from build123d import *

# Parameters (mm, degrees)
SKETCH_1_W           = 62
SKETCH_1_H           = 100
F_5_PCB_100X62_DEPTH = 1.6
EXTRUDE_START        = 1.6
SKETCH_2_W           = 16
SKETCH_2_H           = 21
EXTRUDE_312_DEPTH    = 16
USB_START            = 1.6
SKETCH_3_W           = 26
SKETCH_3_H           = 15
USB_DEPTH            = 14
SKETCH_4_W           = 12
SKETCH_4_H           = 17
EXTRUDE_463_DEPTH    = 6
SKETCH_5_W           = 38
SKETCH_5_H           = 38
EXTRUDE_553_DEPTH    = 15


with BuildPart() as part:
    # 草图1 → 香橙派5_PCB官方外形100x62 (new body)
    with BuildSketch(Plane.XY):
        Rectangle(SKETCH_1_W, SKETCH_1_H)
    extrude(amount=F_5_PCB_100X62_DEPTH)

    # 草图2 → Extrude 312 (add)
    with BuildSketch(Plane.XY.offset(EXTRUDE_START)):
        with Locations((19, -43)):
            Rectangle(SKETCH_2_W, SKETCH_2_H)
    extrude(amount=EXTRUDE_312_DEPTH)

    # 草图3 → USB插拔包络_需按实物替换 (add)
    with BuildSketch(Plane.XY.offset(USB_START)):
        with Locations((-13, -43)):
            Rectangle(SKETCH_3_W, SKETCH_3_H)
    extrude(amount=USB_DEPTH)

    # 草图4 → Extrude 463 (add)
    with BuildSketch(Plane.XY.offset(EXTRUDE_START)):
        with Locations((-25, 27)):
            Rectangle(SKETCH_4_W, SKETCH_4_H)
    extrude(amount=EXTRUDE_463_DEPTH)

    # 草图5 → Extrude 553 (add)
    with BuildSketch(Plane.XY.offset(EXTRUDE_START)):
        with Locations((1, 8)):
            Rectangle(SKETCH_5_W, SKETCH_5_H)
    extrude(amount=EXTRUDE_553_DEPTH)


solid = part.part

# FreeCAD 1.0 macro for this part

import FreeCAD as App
import Part
import Sketcher
from FreeCAD import Vector


def add_polygon(sketch, points):
    """Adds a closed chain of lines whose ends are joined by coincident constraints."""
    first, n = sketch.GeometryCount, len(points)
    for a, b in zip(points, points[1:] + points[:1]):
        sketch.addGeometry(Part.LineSegment(App.Vector(*a, 0), App.Vector(*b, 0)), False)
    for i in range(n):
        sketch.addConstraint(Sketcher.Constraint("Coincident", first + i, 2, first + (i + 1) % n, 1))

doc = App.newDocument("Part")
params = doc.addObject("Spreadsheet::Sheet", "Params")
for row, (alias, value) in enumerate([
    ("sketch1_width", "62 mm"),
    ("sketch1_height", "100 mm"),
    ("pad1_length", "1.6 mm"),
    ("sketch2_width", "16 mm"),
    ("sketch2_height", "21 mm"),
    ("pad2_length", "16 mm"),
    ("sketch3_width", "26 mm"),
    ("sketch3_height", "15 mm"),
    ("pad3_length", "14 mm"),
    ("sketch4_width", "12 mm"),
    ("sketch4_height", "17 mm"),
    ("pad4_length", "6 mm"),
    ("sketch5_width", "38 mm"),
    ("pad5_length", "15 mm"),
], start=1):
    params.set(f"A{row}", alias)
    params.set(f"B{row}", "=" + value)
    params.setAlias(f"B{row}", alias)

body = doc.addObject("PartDesign::Body", "Body")

sketch1 = body.newObject("Sketcher::SketchObject", "Sketch")
sketch1.AttachmentSupport = (doc.getObject("XY_Plane"), [""])
sketch1.MapMode = "FlatFace"
add_polygon(sketch1, [(-31, 50), (-31, -50), (31, -50), (31, 50)])
sketch1.addConstraint(Sketcher.Constraint("Vertical", 0))
sketch1.addConstraint(Sketcher.Constraint("Horizontal", 1))
sketch1.addConstraint(Sketcher.Constraint("Vertical", 2))
sketch1.addConstraint(Sketcher.Constraint("Horizontal", 3))
sketch1.addConstraint(Sketcher.Constraint("Symmetric", 0, 2, 2, 2, -1, 1))
sketch1.addConstraint(Sketcher.Constraint("DistanceX", 1, 1, 1, 2, 62.0))
sketch1.addConstraint(Sketcher.Constraint("DistanceY", 0, 2, 0, 1, 100.0))
sketch1.setExpression("Constraints[9]", "Params.sketch1_width")
sketch1.setExpression("Constraints[10]", "Params.sketch1_height")
pad1 = body.newObject("PartDesign::Pad", "Pad")
pad1.Profile = sketch1
pad1.setExpression("Length", "Params.pad1_length")

sketch2 = body.newObject("Sketcher::SketchObject", "Sketch001")
sketch2.AttachmentSupport = (doc.getObject("XY_Plane"), [""])
sketch2.MapMode = "FlatFace"
sketch2.AttachmentOffset = App.Placement(Vector(0, 0, 1.6), App.Rotation())
add_polygon(sketch2, [(11, -32), (11, -54), (27, -54), (27, -32)])
sketch2.addConstraint(Sketcher.Constraint("Vertical", 0))
sketch2.addConstraint(Sketcher.Constraint("Horizontal", 1))
sketch2.addConstraint(Sketcher.Constraint("Vertical", 2))
sketch2.addConstraint(Sketcher.Constraint("Horizontal", 3))
sketch2.addConstraint(Sketcher.Constraint("DistanceX", 1, 1, 1, 2, 16.0))
sketch2.addConstraint(Sketcher.Constraint("DistanceY", 0, 2, 0, 1, 21.0))
sketch2.addConstraint(Sketcher.Constraint("DistanceX", -1, 1, 0, 2, 11.0))
sketch2.addConstraint(Sketcher.Constraint("DistanceY", 0, 2, -1, 1, 53.5))
sketch2.setExpression("Constraints[8]", "Params.sketch2_width")
sketch2.setExpression("Constraints[9]", "Params.sketch2_height")
pad2 = body.newObject("PartDesign::Pad", "Pad001")
pad2.Profile = sketch2
pad2.setExpression("Length", "Params.pad2_length")

sketch3 = body.newObject("Sketcher::SketchObject", "Sketch002")
sketch3.AttachmentSupport = (doc.getObject("XY_Plane"), [""])
sketch3.MapMode = "FlatFace"
sketch3.AttachmentOffset = App.Placement(Vector(0, 0, 1.6), App.Rotation())
add_polygon(sketch3, [(-26, -36), (-26, -50), (0, -50), (0, -36)])
sketch3.addConstraint(Sketcher.Constraint("Vertical", 0))
sketch3.addConstraint(Sketcher.Constraint("Horizontal", 1))
sketch3.addConstraint(Sketcher.Constraint("Vertical", 2))
sketch3.addConstraint(Sketcher.Constraint("Horizontal", 3))
sketch3.addConstraint(Sketcher.Constraint("PointOnObject", 1, 2, -2))
sketch3.addConstraint(Sketcher.Constraint("DistanceX", 1, 1, 1, 2, 26.0))
sketch3.addConstraint(Sketcher.Constraint("DistanceY", 0, 2, 0, 1, 15.0))
sketch3.addConstraint(Sketcher.Constraint("DistanceY", 0, 2, -1, 1, 50.5))
sketch3.setExpression("Constraints[9]", "Params.sketch3_width")
sketch3.setExpression("Constraints[10]", "Params.sketch3_height")
pad3 = body.newObject("PartDesign::Pad", "Pad002")
pad3.Profile = sketch3
pad3.setExpression("Length", "Params.pad3_length")

sketch4 = body.newObject("Sketcher::SketchObject", "Sketch003")
sketch4.AttachmentSupport = (doc.getObject("XY_Plane"), [""])
sketch4.MapMode = "FlatFace"
sketch4.AttachmentOffset = App.Placement(Vector(0, 0, 1.6), App.Rotation())
add_polygon(sketch4, [(-31, 36), (-31, 18), (-19, 18), (-19, 36)])
sketch4.addConstraint(Sketcher.Constraint("Vertical", 0))
sketch4.addConstraint(Sketcher.Constraint("Horizontal", 1))
sketch4.addConstraint(Sketcher.Constraint("Vertical", 2))
sketch4.addConstraint(Sketcher.Constraint("Horizontal", 3))
sketch4.addConstraint(Sketcher.Constraint("DistanceX", 1, 1, 1, 2, 12.0))
sketch4.addConstraint(Sketcher.Constraint("DistanceY", 0, 2, 0, 1, 17.0))
sketch4.addConstraint(Sketcher.Constraint("DistanceX", 0, 2, -1, 1, 31.0))
sketch4.addConstraint(Sketcher.Constraint("DistanceY", -1, 1, 0, 2, 18.5))
sketch4.setExpression("Constraints[8]", "Params.sketch4_width")
sketch4.setExpression("Constraints[9]", "Params.sketch4_height")
pad4 = body.newObject("PartDesign::Pad", "Pad003")
pad4.Profile = sketch4
pad4.setExpression("Length", "Params.pad4_length")

sketch5 = body.newObject("Sketcher::SketchObject", "Sketch004")
sketch5.AttachmentSupport = (doc.getObject("XY_Plane"), [""])
sketch5.MapMode = "FlatFace"
sketch5.AttachmentOffset = App.Placement(Vector(0, 0, 1.6), App.Rotation())
add_polygon(sketch5, [(-18, 27), (-18, -11), (20, -11), (20, 27)])
sketch5.addConstraint(Sketcher.Constraint("Vertical", 0))
sketch5.addConstraint(Sketcher.Constraint("Horizontal", 1))
sketch5.addConstraint(Sketcher.Constraint("Vertical", 2))
sketch5.addConstraint(Sketcher.Constraint("Horizontal", 3))
sketch5.addConstraint(Sketcher.Constraint("Equal", 3, 0))
sketch5.addConstraint(Sketcher.Constraint("DistanceX", 1, 1, 1, 2, 38.0))
sketch5.addConstraint(Sketcher.Constraint("DistanceX", 0, 2, -1, 1, 18.0))
sketch5.addConstraint(Sketcher.Constraint("DistanceY", 0, 2, -1, 1, 11.0))
sketch5.setExpression("Constraints[9]", "Params.sketch5_width")
pad5 = body.newObject("PartDesign::Pad", "Pad004")
pad5.Profile = sketch5
pad5.setExpression("Length", "Params.pad5_length")

doc.recompute()
